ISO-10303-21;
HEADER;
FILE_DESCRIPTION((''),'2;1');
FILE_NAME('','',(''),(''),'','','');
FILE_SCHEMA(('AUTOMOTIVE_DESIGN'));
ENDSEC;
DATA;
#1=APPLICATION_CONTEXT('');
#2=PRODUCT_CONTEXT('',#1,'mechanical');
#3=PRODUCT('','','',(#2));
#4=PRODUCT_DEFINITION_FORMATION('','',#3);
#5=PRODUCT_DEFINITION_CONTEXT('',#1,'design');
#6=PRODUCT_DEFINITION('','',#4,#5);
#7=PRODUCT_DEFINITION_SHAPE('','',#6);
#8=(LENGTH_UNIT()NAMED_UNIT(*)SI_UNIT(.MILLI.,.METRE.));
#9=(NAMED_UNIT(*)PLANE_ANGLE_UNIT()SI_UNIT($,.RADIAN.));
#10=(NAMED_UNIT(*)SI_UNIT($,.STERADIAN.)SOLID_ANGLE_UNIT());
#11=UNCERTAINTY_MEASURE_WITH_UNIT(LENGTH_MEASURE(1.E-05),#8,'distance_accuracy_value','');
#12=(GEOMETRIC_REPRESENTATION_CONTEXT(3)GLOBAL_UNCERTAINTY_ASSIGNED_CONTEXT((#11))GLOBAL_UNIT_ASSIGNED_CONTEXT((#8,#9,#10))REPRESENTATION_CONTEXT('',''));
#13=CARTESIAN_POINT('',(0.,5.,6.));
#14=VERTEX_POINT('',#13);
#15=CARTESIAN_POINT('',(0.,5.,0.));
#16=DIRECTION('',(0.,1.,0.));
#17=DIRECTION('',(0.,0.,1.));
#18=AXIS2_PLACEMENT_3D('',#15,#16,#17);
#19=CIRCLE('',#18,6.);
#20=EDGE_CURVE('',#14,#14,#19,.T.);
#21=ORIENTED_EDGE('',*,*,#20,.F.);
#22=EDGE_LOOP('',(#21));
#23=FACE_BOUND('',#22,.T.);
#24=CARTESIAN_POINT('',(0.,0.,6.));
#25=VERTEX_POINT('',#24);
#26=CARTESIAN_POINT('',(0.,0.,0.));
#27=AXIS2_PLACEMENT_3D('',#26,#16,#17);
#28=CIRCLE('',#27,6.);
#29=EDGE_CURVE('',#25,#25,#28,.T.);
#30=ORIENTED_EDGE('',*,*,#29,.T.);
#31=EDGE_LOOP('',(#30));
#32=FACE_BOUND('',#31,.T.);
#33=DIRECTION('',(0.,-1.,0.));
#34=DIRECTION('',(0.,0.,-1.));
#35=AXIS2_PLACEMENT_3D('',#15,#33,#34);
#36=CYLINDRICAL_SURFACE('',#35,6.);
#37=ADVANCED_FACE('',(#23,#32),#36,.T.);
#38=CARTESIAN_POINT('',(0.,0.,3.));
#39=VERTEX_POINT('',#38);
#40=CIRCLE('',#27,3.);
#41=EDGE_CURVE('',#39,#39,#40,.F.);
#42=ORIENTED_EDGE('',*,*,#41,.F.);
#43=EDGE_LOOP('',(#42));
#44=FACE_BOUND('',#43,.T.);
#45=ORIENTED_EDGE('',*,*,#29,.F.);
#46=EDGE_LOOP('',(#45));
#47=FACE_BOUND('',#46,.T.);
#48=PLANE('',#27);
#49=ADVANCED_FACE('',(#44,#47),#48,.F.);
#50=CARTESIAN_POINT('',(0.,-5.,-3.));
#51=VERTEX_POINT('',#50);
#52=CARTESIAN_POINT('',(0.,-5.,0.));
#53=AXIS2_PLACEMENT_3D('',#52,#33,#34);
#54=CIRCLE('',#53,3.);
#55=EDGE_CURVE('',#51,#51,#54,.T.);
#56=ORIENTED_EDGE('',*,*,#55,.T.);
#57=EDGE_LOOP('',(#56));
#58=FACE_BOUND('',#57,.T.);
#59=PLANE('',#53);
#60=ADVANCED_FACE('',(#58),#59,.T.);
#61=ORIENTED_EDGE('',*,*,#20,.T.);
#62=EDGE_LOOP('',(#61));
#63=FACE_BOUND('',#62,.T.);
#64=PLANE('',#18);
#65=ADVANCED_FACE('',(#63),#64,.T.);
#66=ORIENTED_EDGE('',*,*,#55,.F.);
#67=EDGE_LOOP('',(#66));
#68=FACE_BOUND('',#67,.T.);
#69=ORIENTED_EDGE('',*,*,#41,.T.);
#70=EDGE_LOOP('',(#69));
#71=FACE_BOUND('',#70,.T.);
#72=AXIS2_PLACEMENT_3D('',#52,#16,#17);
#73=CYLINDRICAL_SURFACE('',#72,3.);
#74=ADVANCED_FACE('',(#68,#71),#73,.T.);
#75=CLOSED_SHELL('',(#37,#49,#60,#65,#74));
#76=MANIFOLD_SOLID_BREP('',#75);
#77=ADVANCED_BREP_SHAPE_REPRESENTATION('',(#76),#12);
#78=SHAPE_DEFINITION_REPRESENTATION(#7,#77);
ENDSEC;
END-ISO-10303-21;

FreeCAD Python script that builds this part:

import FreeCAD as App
import Part
import Sketcher
Q = App.Units.Quantity

doc = App.newDocument("Part")
body = doc.addObject("PartDesign::Body", "Body")

sketch1 = body.newObject("Sketcher::SketchObject", "Sketch")
sketch1.AttachmentSupport = (doc.getObject("XZ_Plane"), [""])
sketch1.MapMode = "FlatFace"
sketch1.addGeometry(Part.Circle(App.Vector(0, 0, 0), App.Vector(0, 0, 1), 6), False)
sketch1.addConstraint([
    Sketcher.Constraint("Coincident", 0, 3, -1, 1),
    Sketcher.Constraint("Diameter", 0, Q("12 mm")),
])
pad1 = body.newObject("PartDesign::Pad", "Pad")
pad1.Profile = sketch1
pad1.Length = 5
pad1.Reversed = True

sketch2 = body.newObject("Sketcher::SketchObject", "Sketch001")
sketch2.AttachmentSupport = (doc.getObject("XZ_Plane"), [""])
sketch2.MapMode = "FlatFace"
sketch2.addGeometry(Part.Circle(App.Vector(0, 0, 0), App.Vector(0, 0, 1), 3), False)
sketch2.addConstraint([
    Sketcher.Constraint("Coincident", 0, 3, -1, 1),
    Sketcher.Constraint("Diameter", 0, Q("6 mm")),
])
pad2 = body.newObject("PartDesign::Pad", "Pad001")
pad2.Profile = sketch2
pad2.Length = 5

doc.recompute()
